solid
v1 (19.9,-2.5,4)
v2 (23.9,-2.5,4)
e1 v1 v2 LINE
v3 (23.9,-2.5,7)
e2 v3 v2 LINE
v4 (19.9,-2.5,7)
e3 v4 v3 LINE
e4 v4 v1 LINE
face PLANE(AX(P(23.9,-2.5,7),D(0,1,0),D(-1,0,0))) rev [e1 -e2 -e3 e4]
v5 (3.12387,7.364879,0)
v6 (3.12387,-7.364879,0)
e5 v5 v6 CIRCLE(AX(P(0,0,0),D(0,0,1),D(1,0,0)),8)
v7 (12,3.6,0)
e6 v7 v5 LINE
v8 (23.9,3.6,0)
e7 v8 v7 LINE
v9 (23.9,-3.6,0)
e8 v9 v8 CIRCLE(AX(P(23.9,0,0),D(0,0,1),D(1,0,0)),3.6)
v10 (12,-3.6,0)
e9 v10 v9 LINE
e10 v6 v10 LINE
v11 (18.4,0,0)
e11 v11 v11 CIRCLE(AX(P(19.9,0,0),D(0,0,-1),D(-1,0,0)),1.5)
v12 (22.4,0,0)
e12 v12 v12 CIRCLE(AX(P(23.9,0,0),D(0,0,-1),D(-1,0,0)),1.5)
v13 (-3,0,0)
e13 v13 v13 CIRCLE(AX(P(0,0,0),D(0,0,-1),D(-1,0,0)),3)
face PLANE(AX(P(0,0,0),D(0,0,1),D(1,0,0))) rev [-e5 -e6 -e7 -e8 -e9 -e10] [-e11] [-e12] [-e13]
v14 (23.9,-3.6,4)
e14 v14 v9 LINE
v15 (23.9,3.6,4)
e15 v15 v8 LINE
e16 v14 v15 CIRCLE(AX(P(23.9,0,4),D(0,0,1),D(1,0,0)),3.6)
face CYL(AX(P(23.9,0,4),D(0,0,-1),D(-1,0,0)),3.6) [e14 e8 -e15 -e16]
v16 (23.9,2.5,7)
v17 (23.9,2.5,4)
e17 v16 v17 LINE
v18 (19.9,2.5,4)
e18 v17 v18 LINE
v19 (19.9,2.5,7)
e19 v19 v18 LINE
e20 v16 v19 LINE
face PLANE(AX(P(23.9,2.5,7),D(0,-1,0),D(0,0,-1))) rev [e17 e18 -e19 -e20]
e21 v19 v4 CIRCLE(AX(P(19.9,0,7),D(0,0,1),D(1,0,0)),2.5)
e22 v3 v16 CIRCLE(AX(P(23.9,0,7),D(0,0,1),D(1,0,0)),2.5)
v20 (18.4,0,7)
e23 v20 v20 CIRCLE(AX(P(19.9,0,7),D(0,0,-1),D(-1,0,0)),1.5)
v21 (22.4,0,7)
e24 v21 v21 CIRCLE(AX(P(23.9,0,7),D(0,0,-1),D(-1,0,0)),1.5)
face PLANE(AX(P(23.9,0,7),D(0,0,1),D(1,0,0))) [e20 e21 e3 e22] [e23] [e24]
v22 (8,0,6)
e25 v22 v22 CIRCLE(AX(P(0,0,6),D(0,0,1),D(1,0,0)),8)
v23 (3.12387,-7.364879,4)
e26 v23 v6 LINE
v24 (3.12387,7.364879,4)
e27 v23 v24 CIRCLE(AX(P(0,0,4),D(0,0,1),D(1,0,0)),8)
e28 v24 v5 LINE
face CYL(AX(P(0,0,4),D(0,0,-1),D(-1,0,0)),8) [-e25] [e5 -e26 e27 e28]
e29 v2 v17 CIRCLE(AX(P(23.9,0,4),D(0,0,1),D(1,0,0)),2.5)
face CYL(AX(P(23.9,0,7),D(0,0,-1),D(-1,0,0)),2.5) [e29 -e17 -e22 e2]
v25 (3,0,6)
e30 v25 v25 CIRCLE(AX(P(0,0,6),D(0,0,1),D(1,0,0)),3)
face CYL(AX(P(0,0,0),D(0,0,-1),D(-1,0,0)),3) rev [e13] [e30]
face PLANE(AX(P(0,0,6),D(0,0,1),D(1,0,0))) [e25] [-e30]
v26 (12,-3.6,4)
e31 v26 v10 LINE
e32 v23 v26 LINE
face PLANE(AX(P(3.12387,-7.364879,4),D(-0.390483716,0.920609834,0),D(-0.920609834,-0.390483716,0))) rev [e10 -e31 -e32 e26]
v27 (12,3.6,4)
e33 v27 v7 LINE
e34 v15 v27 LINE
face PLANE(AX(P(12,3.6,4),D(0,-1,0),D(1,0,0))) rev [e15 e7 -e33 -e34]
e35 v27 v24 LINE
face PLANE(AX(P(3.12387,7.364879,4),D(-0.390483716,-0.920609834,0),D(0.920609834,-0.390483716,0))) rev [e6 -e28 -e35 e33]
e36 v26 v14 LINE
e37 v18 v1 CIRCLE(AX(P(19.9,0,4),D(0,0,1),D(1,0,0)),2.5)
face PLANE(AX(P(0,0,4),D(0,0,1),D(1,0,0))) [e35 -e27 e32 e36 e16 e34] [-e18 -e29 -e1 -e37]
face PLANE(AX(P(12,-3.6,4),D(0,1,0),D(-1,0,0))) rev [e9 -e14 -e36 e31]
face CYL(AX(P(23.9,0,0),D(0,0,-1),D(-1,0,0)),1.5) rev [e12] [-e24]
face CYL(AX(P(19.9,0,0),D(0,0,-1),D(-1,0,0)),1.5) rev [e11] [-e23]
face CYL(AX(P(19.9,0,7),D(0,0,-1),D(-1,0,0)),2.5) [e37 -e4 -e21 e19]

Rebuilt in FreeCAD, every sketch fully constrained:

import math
import FreeCAD as App
import Part
import Sketcher
from FreeCAD import Vector

doc = App.newDocument("Part")
body = doc.addObject("PartDesign::Body", "Body")

# Sketch on XY plane
sketch1 = body.newObject("Sketcher::SketchObject", "Sketch")
sketch1.AttachmentSupport = (doc.getObject("XY_Plane"), [""])
sketch1.MapMode = "FlatFace"
sketch1.addGeometry([
    Part.LineSegment(Vector(12, 3.6, 0), Vector(3.1, 7.4, 0)),  # 0
    Part.ArcOfCircle(Part.Circle(Vector(0, 0, 0), Vector(0, 0, 1), 8), math.radians(67), math.radians(293)),  # 1
    Part.LineSegment(Vector(3.1, -7.4, 0), Vector(12, -3.6, 0)),  # 2
    Part.LineSegment(Vector(12, -3.6, 0), Vector(23.9, -3.6, 0)),  # 3
    Part.ArcOfCircle(Part.Circle(Vector(23.9, 0, 0), Vector(0, 0, 1), 3.6), math.radians(-90), math.radians(90)),  # 4
    Part.LineSegment(Vector(23.9, 3.6, 0), Vector(12, 3.6, 0)),  # 5
], False)
sketch1.addConstraint([
    Sketcher.Constraint("Tangent", 0, 2, 1, 1),
    Sketcher.Constraint("Tangent", 1, 2, 2, 1),
    Sketcher.Constraint("Coincident", 2, 2, 3, 1),
    Sketcher.Constraint("Tangent", 3, 2, 4, 1),
    Sketcher.Constraint("Tangent", 4, 2, 5, 1),
    Sketcher.Constraint("Coincident", 5, 2, 0, 1),
    Sketcher.Constraint("Horizontal", 3),
    Sketcher.Constraint("Horizontal", 5),
    Sketcher.Constraint("Coincident", 1, 3, -1, 1),
    Sketcher.Constraint("Symmetric", 2, 2, 5, 2, -1),
    Sketcher.Constraint("Radius", 1, 8.0),
    Sketcher.Constraint("Radius", 4, 3.6),
    Sketcher.Constraint("DistanceX", 3, 1, 3, 2, 11.9),
    Sketcher.Constraint("DistanceX", -1, 1, 2, 2, 12.0),
])
pad1 = body.newObject("PartDesign::Pad", "Pad")
pad1.Profile = sketch1
pad1.Length = 4

# Sketch on XY plane
sketch2 = body.newObject("Sketcher::SketchObject", "Sketch001")
sketch2.AttachmentSupport = (doc.getObject("XY_Plane"), [""])
sketch2.MapMode = "FlatFace"
sketch2.AttachmentOffset = App.Placement(Vector(0, 0, 4), App.Rotation())
sketch2.addGeometry(Part.Circle(Vector(0, 0, 0), Vector(0, 0, 1), 8), False)
sketch2.addConstraint([
    Sketcher.Constraint("Coincident", 0, 3, -1, 1),
    Sketcher.Constraint("Diameter", 0, 16.0),
])
pad2 = body.newObject("PartDesign::Pad", "Pad001")
pad2.Profile = sketch2
pad2.Length = 2

# Sketch on XY plane
sketch3 = body.newObject("Sketcher::SketchObject", "Sketch002")
sketch3.AttachmentSupport = (doc.getObject("XY_Plane"), [""])
sketch3.MapMode = "FlatFace"
sketch3.AttachmentOffset = App.Placement(Vector(0, 0, 4), App.Rotation())
sketch3.addGeometry([
    Part.LineSegment(Vector(19.9, -2.5, 0), Vector(23.9, -2.5, 0)),
    Part.ArcOfCircle(Part.Circle(Vector(23.9, 0, 0), Vector(0, 0, 1), 2.5), math.radians(-90), math.radians(90)),
    Part.LineSegment(Vector(23.9, 2.5, 0), Vector(19.9, 2.5, 0)),
    Part.ArcOfCircle(Part.Circle(Vector(19.9, 0, 0), Vector(0, 0, 1), 2.5), math.radians(90), math.radians(270)),
], False)
sketch3.addConstraint([
    Sketcher.Constraint("Tangent", 0, 2, 1, 1),
    Sketcher.Constraint("Tangent", 1, 2, 2, 1),
    Sketcher.Constraint("Tangent", 2, 2, 3, 1),
    Sketcher.Constraint("Tangent", 3, 2, 0, 1),
    Sketcher.Constraint("Horizontal", 0),
    Sketcher.Constraint("Horizontal", 2),
    Sketcher.Constraint("PointOnObject", 1, 3, -1),
    Sketcher.Constraint("Radius", 1, 2.5),
    Sketcher.Constraint("DistanceX", 0, 1, 0, 2, 4.0),
    Sketcher.Constraint("DistanceX", -1, 1, 1, 3, 23.9),
])
pad3 = body.newObject("PartDesign::Pad", "Pad002")
pad3.Profile = sketch3
pad3.Length = 3

# Sketch on XY plane
sketch4 = body.newObject("Sketcher::SketchObject", "Sketch003")
sketch4.AttachmentSupport = (doc.getObject("XY_Plane"), [""])
sketch4.MapMode = "FlatFace"
sketch4.addGeometry([
    Part.Circle(Vector(23.9, 0, 0), Vector(0, 0, 1), 1.5),
    Part.Circle(Vector(19.9, 0, 0), Vector(0, 0, 1), 1.5),
], False)
sketch4.addConstraint([
    Sketcher.Constraint("Equal", 0, 1),
    Sketcher.Constraint("PointOnObject", 0, 3, -1),
    Sketcher.Constraint("PointOnObject", 1, 3, -1),
    Sketcher.Constraint("Diameter", 0, 3.0),
    Sketcher.Constraint("DistanceX", 1, 3, 0, 3, 4.0),
    Sketcher.Constraint("DistanceX", -1, 1, 0, 3, 23.9),
])
doc.recompute()
hole = body.newObject("PartDesign::Hole", "Hole")
hole.Profile = sketch4
hole.ThreadType = "None"
hole.Diameter = 3
hole.DepthType = "ThroughAll"
hole.Reversed = True

# Sketch on XY plane
sketch5 = body.newObject("Sketcher::SketchObject", "Sketch004")
sketch5.AttachmentSupport = (doc.getObject("XY_Plane"), [""])
sketch5.MapMode = "FlatFace"
sketch5.addGeometry(Part.Circle(Vector(0, 0, 0), Vector(0, 0, 1), 3), False)
sketch5.addConstraint([
    Sketcher.Constraint("Coincident", 0, 3, -1, 1),
    Sketcher.Constraint("Diameter", 0, 6.0),
])
doc.recompute()
hole2 = body.newObject("PartDesign::Hole", "Hole001")
hole2.Profile = sketch5
hole2.ThreadType = "None"
hole2.Diameter = 6
hole2.DepthType = "ThroughAll"
hole2.Reversed = True

doc.recompute()
